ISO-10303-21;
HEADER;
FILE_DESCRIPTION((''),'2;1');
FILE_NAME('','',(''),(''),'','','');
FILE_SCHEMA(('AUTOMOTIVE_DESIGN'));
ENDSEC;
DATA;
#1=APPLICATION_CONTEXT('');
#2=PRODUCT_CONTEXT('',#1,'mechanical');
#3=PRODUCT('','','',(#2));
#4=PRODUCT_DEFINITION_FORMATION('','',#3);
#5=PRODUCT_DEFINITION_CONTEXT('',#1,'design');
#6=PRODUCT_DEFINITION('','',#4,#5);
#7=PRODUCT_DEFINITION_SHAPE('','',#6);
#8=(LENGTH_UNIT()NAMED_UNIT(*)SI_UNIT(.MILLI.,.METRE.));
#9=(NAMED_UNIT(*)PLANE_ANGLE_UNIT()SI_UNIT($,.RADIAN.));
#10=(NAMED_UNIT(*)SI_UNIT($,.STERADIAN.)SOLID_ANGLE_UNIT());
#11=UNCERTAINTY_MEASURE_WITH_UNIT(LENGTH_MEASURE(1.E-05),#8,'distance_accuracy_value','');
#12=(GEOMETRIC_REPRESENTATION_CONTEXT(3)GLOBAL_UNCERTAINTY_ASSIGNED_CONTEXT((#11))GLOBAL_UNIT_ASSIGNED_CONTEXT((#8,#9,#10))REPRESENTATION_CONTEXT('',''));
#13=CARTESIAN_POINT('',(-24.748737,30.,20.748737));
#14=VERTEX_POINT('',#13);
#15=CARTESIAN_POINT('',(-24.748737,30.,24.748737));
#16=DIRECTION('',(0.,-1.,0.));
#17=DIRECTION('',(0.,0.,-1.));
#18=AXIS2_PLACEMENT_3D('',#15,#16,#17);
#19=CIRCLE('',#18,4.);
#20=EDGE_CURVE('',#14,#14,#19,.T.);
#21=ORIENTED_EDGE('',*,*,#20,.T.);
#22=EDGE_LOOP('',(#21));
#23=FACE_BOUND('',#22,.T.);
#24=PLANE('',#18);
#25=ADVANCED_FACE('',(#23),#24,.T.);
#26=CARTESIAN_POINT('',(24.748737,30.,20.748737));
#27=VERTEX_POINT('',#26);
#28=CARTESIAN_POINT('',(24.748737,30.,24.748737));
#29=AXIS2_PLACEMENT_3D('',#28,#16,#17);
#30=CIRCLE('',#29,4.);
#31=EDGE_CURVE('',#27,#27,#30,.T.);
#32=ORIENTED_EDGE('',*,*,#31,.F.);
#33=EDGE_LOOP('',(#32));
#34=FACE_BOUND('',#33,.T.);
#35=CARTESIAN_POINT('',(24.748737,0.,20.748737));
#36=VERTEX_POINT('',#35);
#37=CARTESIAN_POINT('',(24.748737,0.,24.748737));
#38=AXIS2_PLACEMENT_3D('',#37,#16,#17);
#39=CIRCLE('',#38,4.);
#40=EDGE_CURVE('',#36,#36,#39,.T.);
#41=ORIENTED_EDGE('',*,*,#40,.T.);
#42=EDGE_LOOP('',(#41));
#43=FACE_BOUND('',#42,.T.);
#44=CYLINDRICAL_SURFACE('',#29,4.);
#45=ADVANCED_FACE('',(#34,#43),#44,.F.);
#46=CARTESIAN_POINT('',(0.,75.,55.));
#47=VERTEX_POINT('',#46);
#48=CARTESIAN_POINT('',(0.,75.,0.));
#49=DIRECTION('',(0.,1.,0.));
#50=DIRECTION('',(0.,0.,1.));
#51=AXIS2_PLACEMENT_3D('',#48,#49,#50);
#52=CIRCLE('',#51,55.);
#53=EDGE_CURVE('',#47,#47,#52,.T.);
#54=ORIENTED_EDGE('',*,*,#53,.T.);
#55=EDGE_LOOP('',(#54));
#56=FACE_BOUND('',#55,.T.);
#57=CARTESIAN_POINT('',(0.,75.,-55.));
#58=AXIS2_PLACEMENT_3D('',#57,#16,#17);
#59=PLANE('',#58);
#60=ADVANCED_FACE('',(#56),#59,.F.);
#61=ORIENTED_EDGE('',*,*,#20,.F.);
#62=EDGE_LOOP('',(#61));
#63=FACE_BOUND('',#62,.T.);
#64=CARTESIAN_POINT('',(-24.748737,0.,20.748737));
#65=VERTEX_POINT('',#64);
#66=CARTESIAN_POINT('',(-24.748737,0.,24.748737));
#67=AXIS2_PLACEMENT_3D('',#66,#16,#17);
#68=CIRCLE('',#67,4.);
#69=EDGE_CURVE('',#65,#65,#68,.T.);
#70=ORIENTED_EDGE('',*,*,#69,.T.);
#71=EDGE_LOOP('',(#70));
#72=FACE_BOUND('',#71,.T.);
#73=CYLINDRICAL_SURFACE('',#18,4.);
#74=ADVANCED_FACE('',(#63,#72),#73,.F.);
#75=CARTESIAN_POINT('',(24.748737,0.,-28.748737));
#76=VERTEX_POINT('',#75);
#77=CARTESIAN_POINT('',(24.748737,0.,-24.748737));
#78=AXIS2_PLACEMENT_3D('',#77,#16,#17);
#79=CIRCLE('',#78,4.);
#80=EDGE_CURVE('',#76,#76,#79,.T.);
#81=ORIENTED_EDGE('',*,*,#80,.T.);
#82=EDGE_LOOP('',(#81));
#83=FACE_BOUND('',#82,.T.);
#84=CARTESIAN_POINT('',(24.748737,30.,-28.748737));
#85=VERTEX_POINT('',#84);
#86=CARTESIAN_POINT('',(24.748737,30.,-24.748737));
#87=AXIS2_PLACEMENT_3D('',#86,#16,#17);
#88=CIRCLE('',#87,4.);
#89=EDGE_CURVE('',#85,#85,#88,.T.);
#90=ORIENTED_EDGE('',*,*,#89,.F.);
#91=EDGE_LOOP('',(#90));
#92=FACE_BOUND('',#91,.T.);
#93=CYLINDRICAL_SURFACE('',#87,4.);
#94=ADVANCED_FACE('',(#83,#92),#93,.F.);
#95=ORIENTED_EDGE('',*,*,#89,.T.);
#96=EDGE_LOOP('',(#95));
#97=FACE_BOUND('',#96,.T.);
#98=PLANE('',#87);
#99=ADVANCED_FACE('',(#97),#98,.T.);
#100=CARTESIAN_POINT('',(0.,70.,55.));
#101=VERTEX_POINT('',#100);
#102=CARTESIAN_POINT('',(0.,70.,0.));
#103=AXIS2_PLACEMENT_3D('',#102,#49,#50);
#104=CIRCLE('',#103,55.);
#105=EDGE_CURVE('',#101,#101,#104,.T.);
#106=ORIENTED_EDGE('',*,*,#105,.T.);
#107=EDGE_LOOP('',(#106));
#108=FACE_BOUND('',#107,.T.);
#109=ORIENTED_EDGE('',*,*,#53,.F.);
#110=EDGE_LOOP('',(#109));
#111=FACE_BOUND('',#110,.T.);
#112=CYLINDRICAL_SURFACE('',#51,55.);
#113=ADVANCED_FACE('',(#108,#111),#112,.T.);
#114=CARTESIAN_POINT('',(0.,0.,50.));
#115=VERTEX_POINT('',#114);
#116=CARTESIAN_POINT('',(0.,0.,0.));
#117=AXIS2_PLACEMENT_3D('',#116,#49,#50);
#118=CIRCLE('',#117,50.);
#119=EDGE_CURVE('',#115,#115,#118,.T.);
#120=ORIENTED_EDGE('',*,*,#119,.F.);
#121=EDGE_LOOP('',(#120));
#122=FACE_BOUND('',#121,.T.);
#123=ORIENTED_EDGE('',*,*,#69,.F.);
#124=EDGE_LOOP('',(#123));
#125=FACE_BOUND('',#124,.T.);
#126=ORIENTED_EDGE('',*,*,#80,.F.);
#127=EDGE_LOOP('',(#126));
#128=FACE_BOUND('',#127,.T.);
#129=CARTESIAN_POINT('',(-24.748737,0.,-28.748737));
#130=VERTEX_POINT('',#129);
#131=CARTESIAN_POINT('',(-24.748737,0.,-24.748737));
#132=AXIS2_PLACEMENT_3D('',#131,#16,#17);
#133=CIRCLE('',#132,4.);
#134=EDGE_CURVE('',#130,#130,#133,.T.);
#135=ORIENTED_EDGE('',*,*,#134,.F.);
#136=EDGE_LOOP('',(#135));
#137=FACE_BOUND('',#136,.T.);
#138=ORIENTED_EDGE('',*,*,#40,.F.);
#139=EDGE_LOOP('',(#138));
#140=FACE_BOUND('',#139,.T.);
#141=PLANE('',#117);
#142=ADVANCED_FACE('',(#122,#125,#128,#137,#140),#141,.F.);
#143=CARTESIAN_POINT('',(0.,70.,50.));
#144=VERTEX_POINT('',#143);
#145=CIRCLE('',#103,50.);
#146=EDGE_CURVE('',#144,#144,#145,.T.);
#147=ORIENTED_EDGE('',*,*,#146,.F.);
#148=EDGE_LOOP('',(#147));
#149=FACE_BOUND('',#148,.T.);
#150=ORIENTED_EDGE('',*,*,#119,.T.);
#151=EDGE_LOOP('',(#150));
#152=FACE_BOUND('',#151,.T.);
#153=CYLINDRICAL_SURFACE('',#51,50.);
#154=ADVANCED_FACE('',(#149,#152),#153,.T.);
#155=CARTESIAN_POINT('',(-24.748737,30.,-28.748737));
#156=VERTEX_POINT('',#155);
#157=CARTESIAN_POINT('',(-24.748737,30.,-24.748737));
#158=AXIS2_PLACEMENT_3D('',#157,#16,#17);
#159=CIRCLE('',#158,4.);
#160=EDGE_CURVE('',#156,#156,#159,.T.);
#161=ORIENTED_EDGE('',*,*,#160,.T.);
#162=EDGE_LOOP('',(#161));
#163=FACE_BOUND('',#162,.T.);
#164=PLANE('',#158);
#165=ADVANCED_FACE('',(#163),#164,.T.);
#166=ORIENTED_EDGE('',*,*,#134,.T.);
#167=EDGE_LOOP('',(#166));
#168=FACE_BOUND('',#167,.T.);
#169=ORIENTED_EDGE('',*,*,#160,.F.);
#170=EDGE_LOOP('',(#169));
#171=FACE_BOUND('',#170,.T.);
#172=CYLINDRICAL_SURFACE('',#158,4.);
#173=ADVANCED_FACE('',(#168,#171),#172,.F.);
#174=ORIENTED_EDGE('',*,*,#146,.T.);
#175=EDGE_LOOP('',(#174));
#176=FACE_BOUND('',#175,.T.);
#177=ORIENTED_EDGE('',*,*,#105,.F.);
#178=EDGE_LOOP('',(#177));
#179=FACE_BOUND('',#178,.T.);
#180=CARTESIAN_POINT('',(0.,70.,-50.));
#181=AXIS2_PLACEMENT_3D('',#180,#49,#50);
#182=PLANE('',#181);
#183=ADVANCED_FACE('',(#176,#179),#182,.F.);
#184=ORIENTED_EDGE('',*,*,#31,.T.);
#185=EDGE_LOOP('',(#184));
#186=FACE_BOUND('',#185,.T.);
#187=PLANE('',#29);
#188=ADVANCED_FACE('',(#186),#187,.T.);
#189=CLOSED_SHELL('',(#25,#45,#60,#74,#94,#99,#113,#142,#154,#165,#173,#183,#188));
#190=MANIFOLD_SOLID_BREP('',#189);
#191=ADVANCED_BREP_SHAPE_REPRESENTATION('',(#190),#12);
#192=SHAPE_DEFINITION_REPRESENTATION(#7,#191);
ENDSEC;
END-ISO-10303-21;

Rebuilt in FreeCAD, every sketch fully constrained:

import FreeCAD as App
import Part
import Sketcher


def add_polygon(sketch, points):
    """Adds a closed chain of lines whose ends are joined by coincident constraints."""
    first, n = sketch.GeometryCount, len(points)
    for a, b in zip(points, points[1:] + points[:1]):
        sketch.addGeometry(Part.LineSegment(App.Vector(*a, 0), App.Vector(*b, 0)), False)
    for i in range(n):
        sketch.addConstraint(Sketcher.Constraint("Coincident", first + i, 2, first + (i + 1) % n, 1))

doc = App.newDocument("Part")
body = doc.addObject("PartDesign::Body", "Body")

# Sketch on YZ plane
sketch1 = doc.addObject("Sketcher::SketchObject", "Sketch")
body.addObject(sketch1)
sketch1.AttachmentSupport = (doc.YZ_Plane, [""])
sketch1.MapMode = "FlatFace"
add_polygon(sketch1, [(0, 0), (0, -50), (70, -50), (70, -55), (75, -55), (75, 0)])  # lines 0-5
sketch1.addConstraint([
    Sketcher.Constraint("Vertical", 0),
    Sketcher.Constraint("Horizontal", 1),
    Sketcher.Constraint("Vertical", 2),
    Sketcher.Constraint("Horizontal", 3),
    Sketcher.Constraint("Vertical", 4),
    Sketcher.Constraint("Horizontal", 5),
    Sketcher.Constraint("Coincident", 5, 2, -1, 1),
    Sketcher.Constraint("Equal", 3, 2),
    Sketcher.Constraint("DistanceX", 1, 1, 1, 2, 70.0),
    Sketcher.Constraint("DistanceX", 3, 1, 3, 2, 5.0),
    Sketcher.Constraint("DistanceY", 0, 2, 0, 1, 50.0),
])
revolution = doc.addObject("PartDesign::Revolution", "Revolution")
body.addObject(revolution)
revolution.Profile = sketch1
revolution.ReferenceAxis = (sketch1, ["H_Axis"])
revolution.Angle = 360

# Sketch on XZ plane
sketch2 = doc.addObject("Sketcher::SketchObject", "Sketch001")
body.addObject(sketch2)
sketch2.AttachmentSupport = (doc.XZ_Plane, [""])
sketch2.MapMode = "FlatFace"
sketch2.addGeometry([
    Part.Circle(App.Vector(-24.7, 24.7, 0), App.Vector(0, 0, 1), 4),
    Part.Circle(App.Vector(24.7, 24.7, 0), App.Vector(0, 0, 1), 4),
    Part.Circle(App.Vector(24.7, -24.7, 0), App.Vector(0, 0, 1), 4),
    Part.Circle(App.Vector(-24.7, -24.7, 0), App.Vector(0, 0, 1), 4),
], False)
sketch2.addConstraint([
    Sketcher.Constraint("Equal", 0, 1),
    Sketcher.Constraint("Equal", 1, 2),
    Sketcher.Constraint("Equal", 2, 3),
    Sketcher.Constraint("Symmetric", 0, 3, 2, 3, -1, 1),
    Sketcher.Constraint("Symmetric", 1, 3, 3, 3, -1, 1),
    Sketcher.Constraint("Symmetric", 0, 3, 1, 3, -2),
    Sketcher.Constraint("Diameter", 0, 8.0),
    Sketcher.Constraint("DistanceX", 0, 3, -1, 1, 24.748737),
    Sketcher.Constraint("DistanceY", -1, 1, 0, 3, 24.748737),
])
pocket1 = doc.addObject("PartDesign::Pocket", "Pocket")
body.addObject(pocket1)
pocket1.Profile = sketch2
pocket1.Length = 30

doc.recompute()
